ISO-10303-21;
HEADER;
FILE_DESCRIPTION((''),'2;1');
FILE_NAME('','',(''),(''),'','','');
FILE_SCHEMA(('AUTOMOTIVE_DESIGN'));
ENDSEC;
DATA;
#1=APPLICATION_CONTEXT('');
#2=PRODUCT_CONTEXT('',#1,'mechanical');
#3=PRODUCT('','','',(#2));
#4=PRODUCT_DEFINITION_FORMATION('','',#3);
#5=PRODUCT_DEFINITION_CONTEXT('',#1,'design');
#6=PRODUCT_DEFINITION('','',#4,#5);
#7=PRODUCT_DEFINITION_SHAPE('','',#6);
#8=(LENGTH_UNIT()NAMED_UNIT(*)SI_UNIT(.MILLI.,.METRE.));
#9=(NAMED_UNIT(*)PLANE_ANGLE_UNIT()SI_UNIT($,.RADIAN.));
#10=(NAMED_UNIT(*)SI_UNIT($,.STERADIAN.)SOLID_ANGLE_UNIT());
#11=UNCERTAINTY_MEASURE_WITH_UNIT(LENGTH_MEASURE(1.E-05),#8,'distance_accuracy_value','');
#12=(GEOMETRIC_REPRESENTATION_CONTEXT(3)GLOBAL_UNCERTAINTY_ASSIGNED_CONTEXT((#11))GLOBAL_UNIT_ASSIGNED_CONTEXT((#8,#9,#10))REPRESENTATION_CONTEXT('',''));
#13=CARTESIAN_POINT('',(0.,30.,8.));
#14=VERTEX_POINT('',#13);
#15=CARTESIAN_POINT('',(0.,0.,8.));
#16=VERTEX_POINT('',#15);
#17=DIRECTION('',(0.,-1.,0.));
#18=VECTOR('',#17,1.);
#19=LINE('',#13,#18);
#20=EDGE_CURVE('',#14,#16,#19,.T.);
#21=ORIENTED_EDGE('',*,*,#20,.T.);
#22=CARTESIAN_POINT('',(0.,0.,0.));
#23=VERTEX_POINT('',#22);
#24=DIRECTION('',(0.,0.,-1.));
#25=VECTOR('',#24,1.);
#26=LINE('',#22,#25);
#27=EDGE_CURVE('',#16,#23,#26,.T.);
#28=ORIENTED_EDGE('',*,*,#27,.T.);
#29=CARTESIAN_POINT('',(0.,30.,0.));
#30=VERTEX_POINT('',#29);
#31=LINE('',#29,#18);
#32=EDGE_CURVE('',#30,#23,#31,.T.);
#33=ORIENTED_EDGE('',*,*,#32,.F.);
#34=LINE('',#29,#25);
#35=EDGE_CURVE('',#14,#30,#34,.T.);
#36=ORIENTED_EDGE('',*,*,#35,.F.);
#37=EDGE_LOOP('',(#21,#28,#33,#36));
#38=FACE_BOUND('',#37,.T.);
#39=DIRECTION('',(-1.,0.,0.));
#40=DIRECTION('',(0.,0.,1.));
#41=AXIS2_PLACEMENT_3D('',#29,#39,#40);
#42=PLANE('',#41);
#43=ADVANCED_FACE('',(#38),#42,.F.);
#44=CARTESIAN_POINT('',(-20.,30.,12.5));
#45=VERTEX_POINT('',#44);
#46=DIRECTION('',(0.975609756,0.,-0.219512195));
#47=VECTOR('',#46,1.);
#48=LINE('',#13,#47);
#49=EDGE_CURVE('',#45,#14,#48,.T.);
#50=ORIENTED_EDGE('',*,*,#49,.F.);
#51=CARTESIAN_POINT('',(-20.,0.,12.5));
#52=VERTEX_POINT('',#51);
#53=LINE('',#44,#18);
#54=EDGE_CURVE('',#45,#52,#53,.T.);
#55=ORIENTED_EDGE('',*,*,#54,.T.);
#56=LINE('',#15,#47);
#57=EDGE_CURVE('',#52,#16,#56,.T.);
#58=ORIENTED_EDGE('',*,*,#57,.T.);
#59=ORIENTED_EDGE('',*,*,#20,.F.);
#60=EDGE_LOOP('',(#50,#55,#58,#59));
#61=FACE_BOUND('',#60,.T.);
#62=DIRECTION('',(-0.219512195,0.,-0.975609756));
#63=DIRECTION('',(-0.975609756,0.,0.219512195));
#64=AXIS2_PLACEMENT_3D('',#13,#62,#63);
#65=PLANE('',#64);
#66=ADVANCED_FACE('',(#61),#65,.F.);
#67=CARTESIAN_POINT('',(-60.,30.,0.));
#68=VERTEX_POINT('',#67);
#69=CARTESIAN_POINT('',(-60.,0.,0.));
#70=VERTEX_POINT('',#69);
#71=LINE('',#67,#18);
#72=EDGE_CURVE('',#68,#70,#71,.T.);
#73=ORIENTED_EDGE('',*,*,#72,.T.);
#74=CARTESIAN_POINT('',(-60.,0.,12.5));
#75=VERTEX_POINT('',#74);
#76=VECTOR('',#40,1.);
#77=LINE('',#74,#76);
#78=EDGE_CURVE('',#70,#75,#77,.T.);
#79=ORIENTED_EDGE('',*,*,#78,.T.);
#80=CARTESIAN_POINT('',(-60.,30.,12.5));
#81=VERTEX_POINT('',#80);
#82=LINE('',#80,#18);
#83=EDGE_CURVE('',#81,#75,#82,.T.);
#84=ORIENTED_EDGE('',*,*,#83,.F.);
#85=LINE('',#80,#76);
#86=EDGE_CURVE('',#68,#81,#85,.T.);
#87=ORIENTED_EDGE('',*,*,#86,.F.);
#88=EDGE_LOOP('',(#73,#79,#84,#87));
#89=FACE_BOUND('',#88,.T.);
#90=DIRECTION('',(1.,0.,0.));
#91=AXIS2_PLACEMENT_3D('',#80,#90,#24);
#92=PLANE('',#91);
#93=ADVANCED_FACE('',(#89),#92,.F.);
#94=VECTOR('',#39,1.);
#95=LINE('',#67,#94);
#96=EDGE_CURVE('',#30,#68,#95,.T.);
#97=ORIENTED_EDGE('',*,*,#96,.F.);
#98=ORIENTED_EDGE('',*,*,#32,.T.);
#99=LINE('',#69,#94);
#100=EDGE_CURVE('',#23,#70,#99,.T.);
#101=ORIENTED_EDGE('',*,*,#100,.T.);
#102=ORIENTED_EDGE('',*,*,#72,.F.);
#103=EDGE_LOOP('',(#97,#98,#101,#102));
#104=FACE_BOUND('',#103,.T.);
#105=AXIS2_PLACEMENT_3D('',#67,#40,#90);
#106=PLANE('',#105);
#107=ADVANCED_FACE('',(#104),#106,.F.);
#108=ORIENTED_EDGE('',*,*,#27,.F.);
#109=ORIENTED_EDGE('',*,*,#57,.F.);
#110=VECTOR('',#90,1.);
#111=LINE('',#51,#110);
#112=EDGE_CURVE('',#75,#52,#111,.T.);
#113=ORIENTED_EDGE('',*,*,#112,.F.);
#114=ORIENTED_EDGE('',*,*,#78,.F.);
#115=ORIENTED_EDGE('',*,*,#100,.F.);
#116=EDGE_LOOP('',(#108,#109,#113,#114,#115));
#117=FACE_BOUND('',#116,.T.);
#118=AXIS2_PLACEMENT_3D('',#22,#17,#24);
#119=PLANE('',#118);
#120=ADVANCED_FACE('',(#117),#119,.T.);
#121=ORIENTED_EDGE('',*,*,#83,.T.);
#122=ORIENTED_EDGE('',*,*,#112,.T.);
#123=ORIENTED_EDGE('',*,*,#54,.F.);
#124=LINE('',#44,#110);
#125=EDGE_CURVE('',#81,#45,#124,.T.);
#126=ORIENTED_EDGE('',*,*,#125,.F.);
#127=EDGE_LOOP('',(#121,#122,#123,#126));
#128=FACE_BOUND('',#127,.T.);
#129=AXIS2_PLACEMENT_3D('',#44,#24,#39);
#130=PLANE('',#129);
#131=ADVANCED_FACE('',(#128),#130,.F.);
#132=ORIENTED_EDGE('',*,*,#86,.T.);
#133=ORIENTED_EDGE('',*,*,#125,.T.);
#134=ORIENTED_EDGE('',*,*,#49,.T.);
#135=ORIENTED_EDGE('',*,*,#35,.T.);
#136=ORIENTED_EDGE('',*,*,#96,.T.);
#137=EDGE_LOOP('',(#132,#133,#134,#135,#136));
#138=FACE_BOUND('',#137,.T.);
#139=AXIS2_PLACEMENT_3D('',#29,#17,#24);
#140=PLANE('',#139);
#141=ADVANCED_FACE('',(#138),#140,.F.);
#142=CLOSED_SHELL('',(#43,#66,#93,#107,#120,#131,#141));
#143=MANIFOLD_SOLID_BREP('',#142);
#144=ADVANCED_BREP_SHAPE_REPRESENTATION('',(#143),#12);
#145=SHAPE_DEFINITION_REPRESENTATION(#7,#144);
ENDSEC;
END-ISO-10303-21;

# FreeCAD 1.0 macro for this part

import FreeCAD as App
import Part
import Sketcher
from FreeCAD import Vector

doc = App.newDocument("Part")
body = doc.addObject("PartDesign::Body", "Body")

# Sketch on XZ plane
sketch1 = body.newObject("Sketcher::SketchObject", "Sketch")
sketch1.AttachmentSupport = (doc.getObject("XZ_Plane"), [""])
sketch1.MapMode = "FlatFace"
sketch1.addGeometry(Part.LineSegment(Vector(0, 8, 0), Vector(0, 0, 0)), False)
sketch1.addGeometry(Part.LineSegment(Vector(0, 0, 0), Vector(-60, 0, 0)), False)
sketch1.addGeometry(Part.LineSegment(Vector(-60, 0, 0), Vector(-60, 12, 0)), False)
sketch1.addGeometry(Part.LineSegment(Vector(-60, 12, 0), Vector(-20, 12, 0)), False)
sketch1.addGeometry(Part.LineSegment(Vector(-20, 12, 0), Vector(0, 8, 0)), False)
sketch1.addConstraint(Sketcher.Constraint("Coincident", 0, 2, 1, 1))
sketch1.addConstraint(Sketcher.Constraint("Coincident", 1, 2, 2, 1))
sketch1.addConstraint(Sketcher.Constraint("Coincident", 2, 2, 3, 1))
sketch1.addConstraint(Sketcher.Constraint("Coincident", 3, 2, 4, 1))
sketch1.addConstraint(Sketcher.Constraint("Coincident", 4, 2, 0, 1))
sketch1.addConstraint(Sketcher.Constraint("Vertical", 0))
sketch1.addConstraint(Sketcher.Constraint("Horizontal", 1))
sketch1.addConstraint(Sketcher.Constraint("Vertical", 2))
sketch1.addConstraint(Sketcher.Constraint("Horizontal", 3))
sketch1.addConstraint(Sketcher.Constraint("Coincident", 0, 2, -1, 1))
sketch1.addConstraint(Sketcher.Constraint("DistanceX", 1, 2, 1, 1, 60.0))
sketch1.addConstraint(Sketcher.Constraint("DistanceX", 3, 1, 3, 2, 40.0))
sketch1.addConstraint(Sketcher.Constraint("DistanceY", 0, 2, 0, 1, 8.0))
sketch1.addConstraint(Sketcher.Constraint("DistanceY", 2, 1, 2, 2, 12.5))
pad1 = body.newObject("PartDesign::Pad", "Pad")
pad1.Profile = sketch1
pad1.Length = 30
pad1.Reversed = True

doc.recompute()
